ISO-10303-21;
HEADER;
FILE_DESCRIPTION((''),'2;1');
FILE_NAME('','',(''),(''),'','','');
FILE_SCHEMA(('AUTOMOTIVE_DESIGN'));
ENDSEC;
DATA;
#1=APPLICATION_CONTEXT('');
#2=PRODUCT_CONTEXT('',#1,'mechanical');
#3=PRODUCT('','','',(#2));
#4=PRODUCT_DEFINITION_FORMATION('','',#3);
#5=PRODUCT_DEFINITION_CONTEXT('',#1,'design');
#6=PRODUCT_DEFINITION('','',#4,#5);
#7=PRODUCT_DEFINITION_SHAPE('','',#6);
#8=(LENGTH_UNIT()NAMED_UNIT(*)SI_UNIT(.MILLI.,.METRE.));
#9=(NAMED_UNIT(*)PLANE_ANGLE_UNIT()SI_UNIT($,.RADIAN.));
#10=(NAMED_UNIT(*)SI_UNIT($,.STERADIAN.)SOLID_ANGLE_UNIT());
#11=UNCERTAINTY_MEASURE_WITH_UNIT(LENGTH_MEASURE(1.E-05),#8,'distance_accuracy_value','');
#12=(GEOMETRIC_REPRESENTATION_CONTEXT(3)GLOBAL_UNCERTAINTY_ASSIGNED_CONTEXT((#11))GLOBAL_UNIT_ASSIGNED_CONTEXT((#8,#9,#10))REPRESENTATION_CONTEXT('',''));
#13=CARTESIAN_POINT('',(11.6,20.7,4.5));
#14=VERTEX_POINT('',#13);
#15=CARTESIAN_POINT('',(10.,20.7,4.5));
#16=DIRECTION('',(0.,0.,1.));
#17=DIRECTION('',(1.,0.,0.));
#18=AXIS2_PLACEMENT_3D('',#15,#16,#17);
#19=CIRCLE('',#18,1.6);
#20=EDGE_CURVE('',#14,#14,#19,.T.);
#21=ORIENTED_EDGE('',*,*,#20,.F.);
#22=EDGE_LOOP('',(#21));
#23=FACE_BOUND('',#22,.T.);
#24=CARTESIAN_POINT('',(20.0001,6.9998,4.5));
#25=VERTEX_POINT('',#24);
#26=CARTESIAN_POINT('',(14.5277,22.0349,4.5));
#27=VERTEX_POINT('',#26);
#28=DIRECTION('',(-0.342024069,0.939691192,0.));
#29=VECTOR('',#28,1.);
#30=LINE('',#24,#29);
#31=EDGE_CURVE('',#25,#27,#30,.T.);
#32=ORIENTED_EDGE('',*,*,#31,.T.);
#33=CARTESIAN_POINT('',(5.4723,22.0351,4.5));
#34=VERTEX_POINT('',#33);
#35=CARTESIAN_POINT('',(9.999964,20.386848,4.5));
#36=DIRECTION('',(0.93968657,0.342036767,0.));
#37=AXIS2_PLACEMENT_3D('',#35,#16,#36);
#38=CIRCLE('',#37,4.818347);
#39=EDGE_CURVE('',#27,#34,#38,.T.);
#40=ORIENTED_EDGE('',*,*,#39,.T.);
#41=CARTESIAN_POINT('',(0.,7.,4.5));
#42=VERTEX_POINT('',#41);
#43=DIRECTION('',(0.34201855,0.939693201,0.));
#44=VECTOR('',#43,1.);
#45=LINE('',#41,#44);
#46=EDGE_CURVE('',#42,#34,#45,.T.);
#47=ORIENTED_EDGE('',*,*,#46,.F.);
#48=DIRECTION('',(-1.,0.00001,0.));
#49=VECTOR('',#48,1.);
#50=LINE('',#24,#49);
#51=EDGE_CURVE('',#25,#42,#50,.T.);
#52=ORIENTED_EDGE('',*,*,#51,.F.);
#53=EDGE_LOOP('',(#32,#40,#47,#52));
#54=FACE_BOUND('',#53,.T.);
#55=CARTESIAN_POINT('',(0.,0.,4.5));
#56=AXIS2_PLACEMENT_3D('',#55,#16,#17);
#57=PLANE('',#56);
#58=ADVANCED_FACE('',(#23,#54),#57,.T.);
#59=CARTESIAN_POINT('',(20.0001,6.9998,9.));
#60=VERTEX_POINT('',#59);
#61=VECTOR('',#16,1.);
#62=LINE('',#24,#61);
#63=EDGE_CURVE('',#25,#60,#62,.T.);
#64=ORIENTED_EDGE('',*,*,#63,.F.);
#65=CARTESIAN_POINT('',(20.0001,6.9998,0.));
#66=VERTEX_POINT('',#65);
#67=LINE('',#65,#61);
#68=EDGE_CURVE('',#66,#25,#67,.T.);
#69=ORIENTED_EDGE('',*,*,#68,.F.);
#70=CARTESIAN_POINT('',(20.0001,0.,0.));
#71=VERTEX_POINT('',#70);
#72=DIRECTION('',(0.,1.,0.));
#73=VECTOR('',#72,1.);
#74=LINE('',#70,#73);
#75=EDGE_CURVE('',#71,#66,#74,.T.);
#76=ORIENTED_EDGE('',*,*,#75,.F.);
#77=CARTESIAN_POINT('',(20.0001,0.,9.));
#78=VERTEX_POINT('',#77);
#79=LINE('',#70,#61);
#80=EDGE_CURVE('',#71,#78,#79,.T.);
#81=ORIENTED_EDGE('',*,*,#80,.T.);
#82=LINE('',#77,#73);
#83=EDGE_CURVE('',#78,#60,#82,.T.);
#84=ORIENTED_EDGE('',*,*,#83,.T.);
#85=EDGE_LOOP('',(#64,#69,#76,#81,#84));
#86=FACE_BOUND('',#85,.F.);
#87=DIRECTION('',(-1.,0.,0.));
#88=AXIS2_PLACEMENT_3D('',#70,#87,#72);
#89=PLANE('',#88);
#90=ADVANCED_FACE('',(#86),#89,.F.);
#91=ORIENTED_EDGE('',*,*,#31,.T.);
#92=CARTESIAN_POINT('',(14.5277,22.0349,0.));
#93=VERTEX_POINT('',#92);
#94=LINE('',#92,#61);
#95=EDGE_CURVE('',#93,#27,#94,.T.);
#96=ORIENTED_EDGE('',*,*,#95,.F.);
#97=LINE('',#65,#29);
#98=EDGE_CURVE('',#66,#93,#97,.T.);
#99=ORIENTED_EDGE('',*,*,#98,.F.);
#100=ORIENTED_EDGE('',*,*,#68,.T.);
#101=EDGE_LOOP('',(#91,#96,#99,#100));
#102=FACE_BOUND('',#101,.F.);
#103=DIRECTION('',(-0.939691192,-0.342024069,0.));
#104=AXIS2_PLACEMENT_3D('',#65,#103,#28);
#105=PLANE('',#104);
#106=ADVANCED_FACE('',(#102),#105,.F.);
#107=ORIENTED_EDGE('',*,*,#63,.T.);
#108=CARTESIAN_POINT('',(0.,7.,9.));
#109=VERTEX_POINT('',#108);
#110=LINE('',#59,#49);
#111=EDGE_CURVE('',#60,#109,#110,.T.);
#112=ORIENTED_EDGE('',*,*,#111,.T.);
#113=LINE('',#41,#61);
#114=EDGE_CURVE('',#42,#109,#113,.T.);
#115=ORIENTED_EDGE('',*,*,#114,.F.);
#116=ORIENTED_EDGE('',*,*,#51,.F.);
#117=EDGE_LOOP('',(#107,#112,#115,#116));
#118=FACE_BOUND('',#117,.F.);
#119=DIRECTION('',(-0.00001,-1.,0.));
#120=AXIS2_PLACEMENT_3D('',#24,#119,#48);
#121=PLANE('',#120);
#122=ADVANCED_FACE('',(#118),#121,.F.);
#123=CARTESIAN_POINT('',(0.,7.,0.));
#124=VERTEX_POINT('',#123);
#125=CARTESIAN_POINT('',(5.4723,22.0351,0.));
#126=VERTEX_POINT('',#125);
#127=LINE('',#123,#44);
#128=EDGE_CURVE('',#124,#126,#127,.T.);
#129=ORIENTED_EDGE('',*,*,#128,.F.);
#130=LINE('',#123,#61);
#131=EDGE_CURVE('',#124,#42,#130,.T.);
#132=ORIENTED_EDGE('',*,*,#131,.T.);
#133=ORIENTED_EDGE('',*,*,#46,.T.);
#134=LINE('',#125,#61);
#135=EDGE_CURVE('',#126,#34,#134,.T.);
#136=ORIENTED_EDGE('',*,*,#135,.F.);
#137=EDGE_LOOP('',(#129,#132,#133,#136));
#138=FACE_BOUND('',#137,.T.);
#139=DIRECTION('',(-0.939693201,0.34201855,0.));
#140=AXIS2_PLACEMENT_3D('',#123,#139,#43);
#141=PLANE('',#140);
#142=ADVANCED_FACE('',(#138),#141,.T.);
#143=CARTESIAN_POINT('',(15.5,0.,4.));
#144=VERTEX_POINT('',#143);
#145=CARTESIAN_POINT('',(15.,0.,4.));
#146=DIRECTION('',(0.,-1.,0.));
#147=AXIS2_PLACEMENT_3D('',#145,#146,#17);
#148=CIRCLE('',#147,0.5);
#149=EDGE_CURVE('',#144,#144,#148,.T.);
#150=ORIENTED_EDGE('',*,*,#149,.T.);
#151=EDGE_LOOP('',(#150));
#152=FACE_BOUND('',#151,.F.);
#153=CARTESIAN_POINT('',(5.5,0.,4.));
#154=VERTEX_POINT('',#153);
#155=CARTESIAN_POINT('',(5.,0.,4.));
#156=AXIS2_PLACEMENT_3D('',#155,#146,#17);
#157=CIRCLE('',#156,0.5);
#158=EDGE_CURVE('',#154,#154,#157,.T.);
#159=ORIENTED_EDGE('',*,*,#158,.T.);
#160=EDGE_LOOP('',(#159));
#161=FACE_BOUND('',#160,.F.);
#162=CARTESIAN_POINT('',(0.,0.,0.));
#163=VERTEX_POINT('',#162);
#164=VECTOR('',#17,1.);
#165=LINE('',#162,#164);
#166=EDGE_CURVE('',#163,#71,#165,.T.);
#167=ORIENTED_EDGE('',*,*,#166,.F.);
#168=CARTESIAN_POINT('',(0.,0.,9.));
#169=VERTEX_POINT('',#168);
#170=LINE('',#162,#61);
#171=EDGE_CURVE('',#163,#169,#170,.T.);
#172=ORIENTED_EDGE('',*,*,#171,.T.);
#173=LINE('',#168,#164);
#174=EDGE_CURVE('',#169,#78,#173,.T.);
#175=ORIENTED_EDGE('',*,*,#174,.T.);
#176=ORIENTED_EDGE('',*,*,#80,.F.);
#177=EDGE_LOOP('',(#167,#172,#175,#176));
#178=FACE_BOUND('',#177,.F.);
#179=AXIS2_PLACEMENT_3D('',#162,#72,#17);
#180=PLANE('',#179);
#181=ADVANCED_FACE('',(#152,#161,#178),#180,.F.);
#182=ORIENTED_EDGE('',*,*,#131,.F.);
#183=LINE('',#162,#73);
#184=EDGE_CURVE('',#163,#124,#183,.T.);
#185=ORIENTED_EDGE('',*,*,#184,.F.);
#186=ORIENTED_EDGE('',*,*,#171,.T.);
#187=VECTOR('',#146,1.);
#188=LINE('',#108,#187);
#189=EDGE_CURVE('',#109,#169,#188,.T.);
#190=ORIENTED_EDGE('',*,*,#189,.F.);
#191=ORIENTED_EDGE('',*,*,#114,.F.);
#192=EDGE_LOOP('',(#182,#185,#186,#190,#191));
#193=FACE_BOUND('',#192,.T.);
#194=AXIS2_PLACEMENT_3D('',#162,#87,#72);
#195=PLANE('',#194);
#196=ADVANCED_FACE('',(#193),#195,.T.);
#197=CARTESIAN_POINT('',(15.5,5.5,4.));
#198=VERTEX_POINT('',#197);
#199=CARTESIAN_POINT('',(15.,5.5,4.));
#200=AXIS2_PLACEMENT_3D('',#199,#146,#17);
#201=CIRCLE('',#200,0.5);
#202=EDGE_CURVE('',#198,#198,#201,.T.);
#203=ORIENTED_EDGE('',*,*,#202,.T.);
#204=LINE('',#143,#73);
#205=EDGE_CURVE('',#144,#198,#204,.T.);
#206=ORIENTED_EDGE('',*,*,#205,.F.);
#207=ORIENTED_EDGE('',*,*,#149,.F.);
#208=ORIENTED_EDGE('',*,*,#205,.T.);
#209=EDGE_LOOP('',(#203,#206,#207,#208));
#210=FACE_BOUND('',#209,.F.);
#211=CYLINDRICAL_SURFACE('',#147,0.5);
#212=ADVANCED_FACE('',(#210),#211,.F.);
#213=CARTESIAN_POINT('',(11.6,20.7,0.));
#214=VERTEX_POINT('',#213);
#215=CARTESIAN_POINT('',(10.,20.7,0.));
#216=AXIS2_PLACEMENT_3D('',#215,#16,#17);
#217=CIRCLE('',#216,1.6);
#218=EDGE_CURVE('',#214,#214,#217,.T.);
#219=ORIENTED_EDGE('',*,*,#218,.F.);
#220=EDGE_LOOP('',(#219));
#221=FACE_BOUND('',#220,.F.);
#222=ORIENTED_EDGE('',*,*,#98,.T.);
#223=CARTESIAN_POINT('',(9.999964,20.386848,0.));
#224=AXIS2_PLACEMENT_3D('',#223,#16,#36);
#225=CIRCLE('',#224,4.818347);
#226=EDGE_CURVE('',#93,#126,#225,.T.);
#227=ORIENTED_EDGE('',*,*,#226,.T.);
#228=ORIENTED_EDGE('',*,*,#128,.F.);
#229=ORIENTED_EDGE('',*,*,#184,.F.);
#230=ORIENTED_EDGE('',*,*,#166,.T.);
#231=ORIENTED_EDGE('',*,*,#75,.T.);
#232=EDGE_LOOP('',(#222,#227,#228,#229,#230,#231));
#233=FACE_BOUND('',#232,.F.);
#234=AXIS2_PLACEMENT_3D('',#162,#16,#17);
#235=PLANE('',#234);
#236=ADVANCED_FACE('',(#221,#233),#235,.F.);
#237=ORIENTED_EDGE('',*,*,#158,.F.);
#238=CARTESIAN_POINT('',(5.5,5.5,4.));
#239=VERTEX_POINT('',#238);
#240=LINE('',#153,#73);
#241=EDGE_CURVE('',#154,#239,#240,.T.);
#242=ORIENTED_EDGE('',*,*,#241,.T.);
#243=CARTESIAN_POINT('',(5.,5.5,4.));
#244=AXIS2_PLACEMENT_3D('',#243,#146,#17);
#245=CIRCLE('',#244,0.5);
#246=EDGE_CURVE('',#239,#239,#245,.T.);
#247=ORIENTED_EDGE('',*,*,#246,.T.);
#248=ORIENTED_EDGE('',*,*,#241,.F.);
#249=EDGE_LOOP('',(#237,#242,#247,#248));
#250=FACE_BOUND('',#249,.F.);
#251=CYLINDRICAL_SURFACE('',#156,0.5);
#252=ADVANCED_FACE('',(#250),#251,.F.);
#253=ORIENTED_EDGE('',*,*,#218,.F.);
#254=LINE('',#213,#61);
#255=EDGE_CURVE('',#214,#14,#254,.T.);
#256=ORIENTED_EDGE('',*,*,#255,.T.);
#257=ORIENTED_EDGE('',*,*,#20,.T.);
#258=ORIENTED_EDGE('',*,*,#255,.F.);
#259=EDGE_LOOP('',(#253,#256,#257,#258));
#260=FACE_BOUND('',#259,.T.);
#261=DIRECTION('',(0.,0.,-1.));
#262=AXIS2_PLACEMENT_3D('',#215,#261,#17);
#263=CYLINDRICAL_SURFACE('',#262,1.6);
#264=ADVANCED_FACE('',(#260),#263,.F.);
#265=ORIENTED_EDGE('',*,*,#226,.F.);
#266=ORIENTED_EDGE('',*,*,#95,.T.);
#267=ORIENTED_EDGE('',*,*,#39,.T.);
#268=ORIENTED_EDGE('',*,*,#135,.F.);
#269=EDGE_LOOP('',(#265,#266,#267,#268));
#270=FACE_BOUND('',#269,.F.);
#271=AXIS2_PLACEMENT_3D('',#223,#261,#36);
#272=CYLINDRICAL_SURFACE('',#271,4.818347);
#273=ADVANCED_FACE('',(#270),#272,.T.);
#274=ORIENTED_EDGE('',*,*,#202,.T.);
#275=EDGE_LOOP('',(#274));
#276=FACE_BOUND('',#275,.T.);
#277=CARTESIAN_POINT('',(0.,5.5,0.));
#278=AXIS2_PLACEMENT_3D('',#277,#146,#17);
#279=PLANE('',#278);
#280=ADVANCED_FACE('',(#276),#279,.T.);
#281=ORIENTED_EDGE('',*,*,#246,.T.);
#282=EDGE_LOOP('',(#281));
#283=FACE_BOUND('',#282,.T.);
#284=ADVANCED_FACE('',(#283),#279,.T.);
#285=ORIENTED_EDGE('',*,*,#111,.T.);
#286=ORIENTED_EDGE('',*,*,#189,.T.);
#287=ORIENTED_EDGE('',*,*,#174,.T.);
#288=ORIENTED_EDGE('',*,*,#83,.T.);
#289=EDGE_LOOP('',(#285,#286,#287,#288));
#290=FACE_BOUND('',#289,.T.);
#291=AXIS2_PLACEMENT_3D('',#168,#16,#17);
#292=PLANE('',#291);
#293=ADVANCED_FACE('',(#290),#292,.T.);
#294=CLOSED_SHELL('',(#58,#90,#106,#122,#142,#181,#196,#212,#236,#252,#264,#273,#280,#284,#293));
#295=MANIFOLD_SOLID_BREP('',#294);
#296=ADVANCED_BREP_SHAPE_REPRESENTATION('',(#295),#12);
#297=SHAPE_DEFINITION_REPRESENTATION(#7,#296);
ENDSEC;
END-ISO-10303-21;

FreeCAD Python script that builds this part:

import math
import FreeCAD as App
import Part
import Sketcher
from FreeCAD import Vector
Q = App.Units.Quantity


def add_polygon(sketch, points):
    """Adds a closed chain of lines whose ends are joined by coincident constraints."""
    first, n = sketch.GeometryCount, len(points)
    for a, b in zip(points, points[1:] + points[:1]):
        sketch.addGeometry(Part.LineSegment(App.Vector(*a, 0), App.Vector(*b, 0)), False)
    for i in range(n):
        sketch.addConstraint(Sketcher.Constraint("Coincident", first + i, 2, first + (i + 1) % n, 1))

doc = App.newDocument("Part")
body = doc.addObject("PartDesign::Body", "Body")

# Sketch on XY plane
sketch1 = body.newObject("Sketcher::SketchObject", "Sketch")
sketch1.AttachmentSupport = (doc.getObject("XY_Plane"), [""])
sketch1.MapMode = "FlatFace"
sketch1.addGeometry([
    Part.LineSegment(Vector(0, 7, 0), Vector(0, 0, 0)),  # 0
    Part.LineSegment(Vector(0, 0, 0), Vector(20.0001, 0, 0)),  # 1
    Part.LineSegment(Vector(20.0001, 0, 0), Vector(20.0001, 6.9998, 0)),  # 2
    Part.LineSegment(Vector(20.0001, 6.9998, 0), Vector(14.5277, 22.0349, 0)),  # 3
    Part.ArcOfCircle(Part.Circle(Vector(10, 20.3869, 0), Vector(0, 0, 1), 4.818295), math.radians(20.000581), math.radians(159.997184)),  # 4
    Part.LineSegment(Vector(5.4723, 22.0351, 0), Vector(0, 7, 0)),  # 5
    Part.Circle(Vector(10, 20.7, 0), Vector(0, 0, 1), 1.6),  # 6
], False)
sketch1.addConstraint([
    Sketcher.Constraint("Coincident", 0, 2, 1, 1),
    Sketcher.Constraint("Coincident", 1, 2, 2, 1),
    Sketcher.Constraint("Coincident", 2, 2, 3, 1),
    Sketcher.Constraint("Tangent", 3, 2, 4, 1),
    Sketcher.Constraint("Tangent", 4, 2, 5, 1),
    Sketcher.Constraint("Coincident", 5, 2, 0, 1),
    Sketcher.Constraint("Vertical", 0),
    Sketcher.Constraint("Horizontal", 1),
    Sketcher.Constraint("Vertical", 2),
    Sketcher.Constraint("Coincident", 0, 2, -1, 1),
    Sketcher.Constraint("Horizontal", 3, 2, 4, 2),
    Sketcher.Constraint("Vertical", 4, 3, 6, 3),
    Sketcher.Constraint("Equal", 3, 5),
    Sketcher.Constraint("DistanceY", 0, 2, 0, 1, 7.0),
    Sketcher.Constraint("Angle", 3, Q("110.0002 deg")),
    Sketcher.Constraint("Distance", 3, 16.0),
    Sketcher.Constraint("DistanceX", -1, 1, 4, 3, 10.0),
    Sketcher.Constraint("Diameter", 6, 3.2),
    Sketcher.Constraint("DistanceY", -1, 1, 6, 3, 20.7),
])
pad1 = body.newObject("PartDesign::Pad", "Pad")
pad1.Profile = sketch1
pad1.Length = 4.5

# Sketch on XY plane
sketch2 = body.newObject("Sketcher::SketchObject", "Sketch001")
sketch2.AttachmentSupport = (doc.getObject("XY_Plane"), [""])
sketch2.MapMode = "FlatFace"
sketch2.AttachmentOffset = App.Placement(Vector(0, 0, 4.5), App.Rotation())
add_polygon(sketch2, [(20.0001, 6.9998), (0, 7), (0, 0), (20.0001, 0)])  # lines 0-3
sketch2.addConstraint([
    Sketcher.Constraint("Vertical", 1),
    Sketcher.Constraint("Horizontal", 2),
    Sketcher.Constraint("Vertical", 3),
    Sketcher.Constraint("Coincident", 1, 2, -1, 1),
    Sketcher.Constraint("DistanceX", 2, 1, 2, 2, 20.0),
    Sketcher.Constraint("DistanceY", 1, 2, 1, 1, 7.0),
    Sketcher.Constraint("Angle", 0, Q("179.9994 deg")),
])
pad2 = body.newObject("PartDesign::Pad", "Pad001")
pad2.Profile = sketch2
pad2.Length = 4.5

# Sketch on XZ plane
sketch3 = body.newObject("Sketcher::SketchObject", "Sketch002")
sketch3.AttachmentSupport = (doc.getObject("XZ_Plane"), [""])
sketch3.MapMode = "FlatFace"
sketch3.addGeometry([
    Part.Circle(Vector(5, 4, 0), Vector(0, 0, 1), 0.5),
    Part.Circle(Vector(15, 4, 0), Vector(0, 0, 1), 0.5),
], False)
sketch3.addConstraint([
    Sketcher.Constraint("Equal", 0, 1),
    Sketcher.Constraint("Horizontal", 0, 3, 1, 3),
    Sketcher.Constraint("Diameter", 0, 1.0),
    Sketcher.Constraint("DistanceX", -1, 1, 0, 3, 5.0),
    Sketcher.Constraint("DistanceY", -1, 1, 0, 3, 4.0),
    Sketcher.Constraint("DistanceX", -1, 1, 1, 3, 15.0),
])
pocket1 = body.newObject("PartDesign::Pocket", "Pocket")
pocket1.Profile = sketch3
pocket1.Length = 5.5

doc.recompute()
